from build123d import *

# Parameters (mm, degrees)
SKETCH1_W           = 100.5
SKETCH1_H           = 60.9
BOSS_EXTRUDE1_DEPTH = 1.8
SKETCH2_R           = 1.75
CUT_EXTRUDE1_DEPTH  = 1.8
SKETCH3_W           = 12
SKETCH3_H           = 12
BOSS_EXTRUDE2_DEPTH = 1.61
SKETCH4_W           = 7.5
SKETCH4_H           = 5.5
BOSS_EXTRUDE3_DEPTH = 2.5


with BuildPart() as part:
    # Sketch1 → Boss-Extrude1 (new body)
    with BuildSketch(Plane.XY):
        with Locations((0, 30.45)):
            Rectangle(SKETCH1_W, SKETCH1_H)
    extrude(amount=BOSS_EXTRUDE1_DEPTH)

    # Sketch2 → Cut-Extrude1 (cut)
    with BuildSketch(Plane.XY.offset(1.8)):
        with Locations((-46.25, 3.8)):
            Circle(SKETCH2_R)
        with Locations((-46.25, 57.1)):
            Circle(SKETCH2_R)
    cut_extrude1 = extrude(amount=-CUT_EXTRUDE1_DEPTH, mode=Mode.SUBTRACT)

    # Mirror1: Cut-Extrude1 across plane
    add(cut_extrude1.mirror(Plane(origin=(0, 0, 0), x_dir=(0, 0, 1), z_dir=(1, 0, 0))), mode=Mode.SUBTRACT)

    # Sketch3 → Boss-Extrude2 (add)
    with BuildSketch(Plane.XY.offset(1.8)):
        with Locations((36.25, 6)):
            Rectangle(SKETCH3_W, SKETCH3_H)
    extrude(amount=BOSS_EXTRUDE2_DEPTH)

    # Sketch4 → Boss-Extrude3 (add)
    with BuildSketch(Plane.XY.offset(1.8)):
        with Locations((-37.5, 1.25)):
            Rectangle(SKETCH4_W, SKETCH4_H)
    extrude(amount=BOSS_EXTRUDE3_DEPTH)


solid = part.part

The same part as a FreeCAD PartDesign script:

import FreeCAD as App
import Part
import Sketcher

doc = App.newDocument("Part")
body = doc.addObject("PartDesign::Body", "Body")

sketch1 = body.newObject("Sketcher::SketchObject", "Sketch")
sketch1.AttachmentSupport = (doc.getObject("XY_Plane"), [""])
sketch1.MapMode = "FlatFace"
sketch1.addGeometry([
    Part.LineSegment(App.Vector(-50, 61, 0), App.Vector(-50, 0, 0)),
    Part.LineSegment(App.Vector(-50, 0, 0), App.Vector(50, 0, 0)),
    Part.LineSegment(App.Vector(50, 0, 0), App.Vector(50, 61, 0)),
    Part.LineSegment(App.Vector(50, 61, 0), App.Vector(-50, 61, 0)),
], False)
sketch1.addConstraint([
    Sketcher.Constraint("Coincident", 0, 2, 1, 1),
    Sketcher.Constraint("Coincident", 1, 2, 2, 1),
    Sketcher.Constraint("Coincident", 2, 2, 3, 1),
    Sketcher.Constraint("Coincident", 3, 2, 0, 1),
    Sketcher.Constraint("Vertical", 0),
    Sketcher.Constraint("Horizontal", 1),
    Sketcher.Constraint("Vertical", 2),
    Sketcher.Constraint("Horizontal", 3),
    Sketcher.Constraint("Symmetric", 0, 2, 1, 2, -1, 1),
    Sketcher.Constraint("DistanceX", 1, 1, 1, 2, 100.5),
    Sketcher.Constraint("DistanceY", 0, 2, 0, 1, 60.9),
])
pad1 = body.newObject("PartDesign::Pad", "Pad")
pad1.Profile = sketch1
pad1.Length = 1.8

sketch2 = body.newObject("Sketcher::SketchObject", "Sketch001")
sketch2.AttachmentSupport = (doc.getObject("XY_Plane"), [""])
sketch2.MapMode = "FlatFace"
sketch2.AttachmentOffset = App.Placement(App.Vector(0, 0, 1.8), App.Rotation())
sketch2.addGeometry([
    Part.Circle(App.Vector(-46.2, 3.8, 0), App.Vector(0, 0, 1), 1.8),
    Part.Circle(App.Vector(-46.2, 57.1, 0), App.Vector(0, 0, 1), 1.8),
], False)
sketch2.addConstraint([
    Sketcher.Constraint("Equal", 0, 1),
    Sketcher.Constraint("Vertical", 0, 3, 1, 3),
    Sketcher.Constraint("Diameter", 0, 3.5),
    Sketcher.Constraint("DistanceY", -1, 1, 0, 3, 3.8),
    Sketcher.Constraint("DistanceY", -1, 1, 1, 3, 57.1),
    Sketcher.Constraint("DistanceX", 0, 3, -1, 1, 46.25),
])
pocket1 = body.newObject("PartDesign::Pocket", "Pocket")
pocket1.Profile = sketch2
pocket1.Length = 1.8
doc.recompute()

mirrored = body.newObject("PartDesign::Mirrored", "Mirrored")
mirrored.Originals = [pocket1]
mirrored.MirrorPlane = (doc.getObject("YZ_Plane"), [""])
body.Tip = mirrored

sketch3 = body.newObject("Sketcher::SketchObject", "Sketch002")
sketch3.AttachmentSupport = (doc.getObject("XY_Plane"), [""])
sketch3.MapMode = "FlatFace"
sketch3.AttachmentOffset = App.Placement(App.Vector(0, 0, 1.8), App.Rotation())
sketch3.addGeometry([
    Part.LineSegment(App.Vector(30, 12, 0), App.Vector(30, 0, 0)),
    Part.LineSegment(App.Vector(30, 0, 0), App.Vector(42, 0, 0)),
    Part.LineSegment(App.Vector(42, 0, 0), App.Vector(42, 12, 0)),
    Part.LineSegment(App.Vector(42, 12, 0), App.Vector(30, 12, 0)),
], False)
sketch3.addConstraint([
    Sketcher.Constraint("Coincident", 0, 2, 1, 1),
    Sketcher.Constraint("Coincident", 1, 2, 2, 1),
    Sketcher.Constraint("Coincident", 2, 2, 3, 1),
    Sketcher.Constraint("Coincident", 3, 2, 0, 1),
    Sketcher.Constraint("Vertical", 0),
    Sketcher.Constraint("Horizontal", 1),
    Sketcher.Constraint("Vertical", 2),
    Sketcher.Constraint("Horizontal", 3),
    Sketcher.Constraint("PointOnObject", 0, 2, -1),
    Sketcher.Constraint("Equal", 3, 0),
    Sketcher.Constraint("DistanceX", 1, 1, 1, 2, 12.0),
    Sketcher.Constraint("DistanceX", -1, 1, 0, 2, 30.25),
])
pad2 = body.newObject("PartDesign::Pad", "Pad001")
pad2.Profile = sketch3
pad2.Length = 1.61

sketch4 = body.newObject("Sketcher::SketchObject", "Sketch003")
sketch4.AttachmentSupport = (doc.getObject("XY_Plane"), [""])
sketch4.MapMode = "FlatFace"
sketch4.AttachmentOffset = App.Placement(App.Vector(0, 0, 1.8), App.Rotation())
sketch4.addGeometry([
    Part.LineSegment(App.Vector(-41, 4, 0), App.Vector(-41, -2, 0)),
    Part.LineSegment(App.Vector(-41, -2, 0), App.Vector(-34, -2, 0)),
    Part.LineSegment(App.Vector(-34, -2, 0), App.Vector(-34, 4, 0)),
    Part.LineSegment(App.Vector(-34, 4, 0), App.Vector(-41, 4, 0)),
], False)
sketch4.addConstraint([
    Sketcher.Constraint("Coincident", 0, 2, 1, 1),
    Sketcher.Constraint("Coincident", 1, 2, 2, 1),
    Sketcher.Constraint("Coincident", 2, 2, 3, 1),
    Sketcher.Constraint("Coincident", 3, 2, 0, 1),
    Sketcher.Constraint("Vertical", 0),
    Sketcher.Constraint("Horizontal", 1),
    Sketcher.Constraint("Vertical", 2),
    Sketcher.Constraint("Horizontal", 3),
    Sketcher.Constraint("DistanceX", 1, 1, 1, 2, 7.5),
    Sketcher.Constraint("DistanceY", 0, 2, 0, 1, 5.5),
    Sketcher.Constraint("DistanceY", -1, 1, 2, 2, 4.0),
    Sketcher.Constraint("DistanceX", 0, 2, -1, 1, 41.25),
])
pad3 = body.newObject("PartDesign::Pad", "Pad002")
pad3.Profile = sketch4
pad3.Length = 2.5

doc.recompute()
